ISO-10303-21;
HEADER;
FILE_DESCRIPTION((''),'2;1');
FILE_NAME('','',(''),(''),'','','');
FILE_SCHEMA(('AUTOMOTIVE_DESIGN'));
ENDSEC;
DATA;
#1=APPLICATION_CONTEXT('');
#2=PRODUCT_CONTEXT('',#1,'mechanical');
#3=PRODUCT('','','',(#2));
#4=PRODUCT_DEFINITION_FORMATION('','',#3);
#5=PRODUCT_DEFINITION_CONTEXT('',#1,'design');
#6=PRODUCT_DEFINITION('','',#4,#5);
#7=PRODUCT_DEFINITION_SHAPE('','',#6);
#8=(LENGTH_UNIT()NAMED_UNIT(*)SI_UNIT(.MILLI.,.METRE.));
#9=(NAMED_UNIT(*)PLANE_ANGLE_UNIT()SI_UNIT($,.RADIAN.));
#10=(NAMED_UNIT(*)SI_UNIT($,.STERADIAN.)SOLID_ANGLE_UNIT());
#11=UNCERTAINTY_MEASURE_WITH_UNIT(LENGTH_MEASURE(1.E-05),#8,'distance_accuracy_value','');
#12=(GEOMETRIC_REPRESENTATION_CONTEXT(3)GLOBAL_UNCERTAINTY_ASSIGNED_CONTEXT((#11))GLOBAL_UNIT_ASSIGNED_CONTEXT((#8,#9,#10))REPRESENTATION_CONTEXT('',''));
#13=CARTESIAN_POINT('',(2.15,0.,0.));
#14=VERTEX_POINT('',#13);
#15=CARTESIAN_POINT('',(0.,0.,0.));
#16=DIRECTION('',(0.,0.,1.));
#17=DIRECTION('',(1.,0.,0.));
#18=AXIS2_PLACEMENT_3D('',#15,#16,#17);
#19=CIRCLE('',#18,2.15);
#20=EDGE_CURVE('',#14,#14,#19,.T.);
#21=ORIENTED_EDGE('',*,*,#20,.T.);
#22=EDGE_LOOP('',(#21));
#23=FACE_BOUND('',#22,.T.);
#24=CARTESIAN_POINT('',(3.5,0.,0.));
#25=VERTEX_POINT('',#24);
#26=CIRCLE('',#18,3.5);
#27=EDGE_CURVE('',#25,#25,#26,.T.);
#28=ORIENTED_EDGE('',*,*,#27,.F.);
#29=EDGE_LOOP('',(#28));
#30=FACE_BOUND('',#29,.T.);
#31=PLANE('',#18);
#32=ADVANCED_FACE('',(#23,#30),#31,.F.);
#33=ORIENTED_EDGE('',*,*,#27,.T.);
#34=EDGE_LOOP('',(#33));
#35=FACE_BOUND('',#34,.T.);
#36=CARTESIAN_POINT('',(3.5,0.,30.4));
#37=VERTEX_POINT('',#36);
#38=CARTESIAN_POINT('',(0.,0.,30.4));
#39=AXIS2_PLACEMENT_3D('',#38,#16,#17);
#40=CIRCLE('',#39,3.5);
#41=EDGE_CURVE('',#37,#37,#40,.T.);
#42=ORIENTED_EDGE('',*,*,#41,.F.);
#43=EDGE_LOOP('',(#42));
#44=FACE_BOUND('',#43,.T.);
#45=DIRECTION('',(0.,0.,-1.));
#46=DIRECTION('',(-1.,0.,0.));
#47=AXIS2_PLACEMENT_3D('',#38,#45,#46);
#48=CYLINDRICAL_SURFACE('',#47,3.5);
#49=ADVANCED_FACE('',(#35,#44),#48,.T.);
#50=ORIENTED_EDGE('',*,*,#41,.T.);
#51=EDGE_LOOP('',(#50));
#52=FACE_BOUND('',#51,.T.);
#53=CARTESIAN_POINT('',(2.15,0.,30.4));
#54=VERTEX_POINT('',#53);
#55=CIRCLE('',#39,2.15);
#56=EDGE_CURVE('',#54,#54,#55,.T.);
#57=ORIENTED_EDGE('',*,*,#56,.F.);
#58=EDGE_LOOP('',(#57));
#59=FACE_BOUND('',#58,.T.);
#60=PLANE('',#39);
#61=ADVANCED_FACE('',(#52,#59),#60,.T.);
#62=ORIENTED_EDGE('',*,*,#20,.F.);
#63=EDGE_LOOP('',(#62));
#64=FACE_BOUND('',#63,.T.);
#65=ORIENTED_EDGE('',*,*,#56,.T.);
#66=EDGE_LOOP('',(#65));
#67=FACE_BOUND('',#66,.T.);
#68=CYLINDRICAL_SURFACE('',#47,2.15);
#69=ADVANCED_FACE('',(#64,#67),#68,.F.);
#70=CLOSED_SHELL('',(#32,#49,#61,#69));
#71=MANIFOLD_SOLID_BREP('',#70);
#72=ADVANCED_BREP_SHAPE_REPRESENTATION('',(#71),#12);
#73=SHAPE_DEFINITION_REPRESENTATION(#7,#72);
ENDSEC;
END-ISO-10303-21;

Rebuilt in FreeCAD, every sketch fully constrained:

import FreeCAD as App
import Part
import Sketcher

V = App.Vector
Q = App.Units.Quantity

doc = App.newDocument("Part")
body = doc.addObject("PartDesign::Body", "Body")

sketch1 = body.newObject("Sketcher::SketchObject", "Sketch")
sketch1.AttachmentSupport = (doc.getObject("XY_Plane"), [""])
sketch1.MapMode = "FlatFace"
sketch1.addGeometry([
    Part.Circle(V(0, 0, 0), V(0, 0, 1), 3.5),
    Part.Circle(V(0, 0, 0), V(0, 0, 1), 2.15),
], False)
sketch1.addConstraint([
    Sketcher.Constraint("Coincident", 0, 3, -1, 1),
    Sketcher.Constraint("Coincident", 1, 3, -1, 1),
    Sketcher.Constraint("Diameter", 0, Q("7 mm")),
    Sketcher.Constraint("Diameter", 1, Q("4.3 mm")),
])
pad1 = body.newObject("PartDesign::Pad", "Pad")
pad1.Profile = sketch1
pad1.Length = 30.4

doc.recompute()
